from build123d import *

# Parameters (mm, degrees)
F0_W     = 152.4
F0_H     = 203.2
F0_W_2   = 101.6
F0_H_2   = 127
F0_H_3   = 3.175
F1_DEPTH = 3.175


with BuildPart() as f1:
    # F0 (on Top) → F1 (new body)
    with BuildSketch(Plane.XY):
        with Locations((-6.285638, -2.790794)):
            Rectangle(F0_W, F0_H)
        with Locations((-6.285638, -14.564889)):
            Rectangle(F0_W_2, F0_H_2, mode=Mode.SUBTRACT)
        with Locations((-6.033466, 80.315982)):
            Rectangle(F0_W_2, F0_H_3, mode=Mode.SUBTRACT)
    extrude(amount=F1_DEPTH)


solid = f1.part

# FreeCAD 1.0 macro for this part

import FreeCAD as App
import Part
import Sketcher
from FreeCAD import Vector
Q = App.Units.Quantity


def add_polygon(sketch, points):
    """Adds a closed chain of lines whose ends are joined by coincident constraints."""
    first, n = sketch.GeometryCount, len(points)
    for a, b in zip(points, points[1:] + points[:1]):
        sketch.addGeometry(Part.LineSegment(App.Vector(*a, 0), App.Vector(*b, 0)), False)
    for i in range(n):
        sketch.addConstraint(Sketcher.Constraint("Coincident", first + i, 2, first + (i + 1) % n, 1))

doc = App.newDocument("Part")
body = doc.addObject("PartDesign::Body", "Body")

# Sketch on XY plane
sketch1 = body.newObject("Sketcher::SketchObject", "Sketch")
sketch1.AttachmentSupport = (doc.getObject("XY_Plane"), [""])
sketch1.MapMode = "FlatFace"
add_polygon(sketch1, [(-82.5, 98.8), (-82.5, -104.4), (69.9, -104.4), (69.9, 98.8)])  # lines 0-3
add_polygon(sketch1, [(44.5, -78.1), (-57.1, -78.1), (-57.1, 48.9), (44.5, 48.9)])  # lines 4-7
add_polygon(sketch1, [(44.8, 78.7), (-56.8, 78.7), (-56.8, 81.9), (44.8, 81.9)])  # lines 8-11
sketch1.addConstraint([
    Sketcher.Constraint("Vertical", 0),
    Sketcher.Constraint("Horizontal", 1),
    Sketcher.Constraint("Vertical", 2),
    Sketcher.Constraint("Horizontal", 3),
    Sketcher.Constraint("Horizontal", 4),
    Sketcher.Constraint("Vertical", 5),
    Sketcher.Constraint("Horizontal", 6),
    Sketcher.Constraint("Vertical", 7),
    Sketcher.Constraint("Horizontal", 8),
    Sketcher.Constraint("Vertical", 9),
    Sketcher.Constraint("Horizontal", 10),
    Sketcher.Constraint("Vertical", 11),
    Sketcher.Constraint("Equal", 6, 8),
    Sketcher.Constraint("DistanceX", 1, 1, 1, 2, Q("6 in")),
    Sketcher.Constraint("DistanceX", 4, 2, 4, 1, Q("4 in")),
    Sketcher.Constraint("DistanceY", 0, 2, 0, 1, Q("8 in")),
    Sketcher.Constraint("DistanceY", 5, 1, 5, 2, Q("5 in")),
    Sketcher.Constraint("DistanceX", 0, 2, 4, 2, Q("1 in")),
    Sketcher.Constraint("DistanceY", 9, 1, 9, 2, Q("0.125 in")),
    Sketcher.Constraint("DistanceX", -1, 1, 1, 2, Q("69.914362 mm")),
    Sketcher.Constraint("DistanceY", 4, 2, -1, 1, Q("78.064889 mm")),
    Sketcher.Constraint("DistanceY", -1, 1, 8, 2, Q("78.728482 mm")),
    Sketcher.Constraint("DistanceX", 3, 2, 8, 2, Q("25.652172 mm")),
    Sketcher.Constraint("DistanceY", 0, 2, -1, 1, Q("104.390794 mm")),
])
pad1 = body.newObject("PartDesign::Pad", "Pad")
pad1.Profile = sketch1
pad1.Length = Q("0.125 in")

doc.recompute()
